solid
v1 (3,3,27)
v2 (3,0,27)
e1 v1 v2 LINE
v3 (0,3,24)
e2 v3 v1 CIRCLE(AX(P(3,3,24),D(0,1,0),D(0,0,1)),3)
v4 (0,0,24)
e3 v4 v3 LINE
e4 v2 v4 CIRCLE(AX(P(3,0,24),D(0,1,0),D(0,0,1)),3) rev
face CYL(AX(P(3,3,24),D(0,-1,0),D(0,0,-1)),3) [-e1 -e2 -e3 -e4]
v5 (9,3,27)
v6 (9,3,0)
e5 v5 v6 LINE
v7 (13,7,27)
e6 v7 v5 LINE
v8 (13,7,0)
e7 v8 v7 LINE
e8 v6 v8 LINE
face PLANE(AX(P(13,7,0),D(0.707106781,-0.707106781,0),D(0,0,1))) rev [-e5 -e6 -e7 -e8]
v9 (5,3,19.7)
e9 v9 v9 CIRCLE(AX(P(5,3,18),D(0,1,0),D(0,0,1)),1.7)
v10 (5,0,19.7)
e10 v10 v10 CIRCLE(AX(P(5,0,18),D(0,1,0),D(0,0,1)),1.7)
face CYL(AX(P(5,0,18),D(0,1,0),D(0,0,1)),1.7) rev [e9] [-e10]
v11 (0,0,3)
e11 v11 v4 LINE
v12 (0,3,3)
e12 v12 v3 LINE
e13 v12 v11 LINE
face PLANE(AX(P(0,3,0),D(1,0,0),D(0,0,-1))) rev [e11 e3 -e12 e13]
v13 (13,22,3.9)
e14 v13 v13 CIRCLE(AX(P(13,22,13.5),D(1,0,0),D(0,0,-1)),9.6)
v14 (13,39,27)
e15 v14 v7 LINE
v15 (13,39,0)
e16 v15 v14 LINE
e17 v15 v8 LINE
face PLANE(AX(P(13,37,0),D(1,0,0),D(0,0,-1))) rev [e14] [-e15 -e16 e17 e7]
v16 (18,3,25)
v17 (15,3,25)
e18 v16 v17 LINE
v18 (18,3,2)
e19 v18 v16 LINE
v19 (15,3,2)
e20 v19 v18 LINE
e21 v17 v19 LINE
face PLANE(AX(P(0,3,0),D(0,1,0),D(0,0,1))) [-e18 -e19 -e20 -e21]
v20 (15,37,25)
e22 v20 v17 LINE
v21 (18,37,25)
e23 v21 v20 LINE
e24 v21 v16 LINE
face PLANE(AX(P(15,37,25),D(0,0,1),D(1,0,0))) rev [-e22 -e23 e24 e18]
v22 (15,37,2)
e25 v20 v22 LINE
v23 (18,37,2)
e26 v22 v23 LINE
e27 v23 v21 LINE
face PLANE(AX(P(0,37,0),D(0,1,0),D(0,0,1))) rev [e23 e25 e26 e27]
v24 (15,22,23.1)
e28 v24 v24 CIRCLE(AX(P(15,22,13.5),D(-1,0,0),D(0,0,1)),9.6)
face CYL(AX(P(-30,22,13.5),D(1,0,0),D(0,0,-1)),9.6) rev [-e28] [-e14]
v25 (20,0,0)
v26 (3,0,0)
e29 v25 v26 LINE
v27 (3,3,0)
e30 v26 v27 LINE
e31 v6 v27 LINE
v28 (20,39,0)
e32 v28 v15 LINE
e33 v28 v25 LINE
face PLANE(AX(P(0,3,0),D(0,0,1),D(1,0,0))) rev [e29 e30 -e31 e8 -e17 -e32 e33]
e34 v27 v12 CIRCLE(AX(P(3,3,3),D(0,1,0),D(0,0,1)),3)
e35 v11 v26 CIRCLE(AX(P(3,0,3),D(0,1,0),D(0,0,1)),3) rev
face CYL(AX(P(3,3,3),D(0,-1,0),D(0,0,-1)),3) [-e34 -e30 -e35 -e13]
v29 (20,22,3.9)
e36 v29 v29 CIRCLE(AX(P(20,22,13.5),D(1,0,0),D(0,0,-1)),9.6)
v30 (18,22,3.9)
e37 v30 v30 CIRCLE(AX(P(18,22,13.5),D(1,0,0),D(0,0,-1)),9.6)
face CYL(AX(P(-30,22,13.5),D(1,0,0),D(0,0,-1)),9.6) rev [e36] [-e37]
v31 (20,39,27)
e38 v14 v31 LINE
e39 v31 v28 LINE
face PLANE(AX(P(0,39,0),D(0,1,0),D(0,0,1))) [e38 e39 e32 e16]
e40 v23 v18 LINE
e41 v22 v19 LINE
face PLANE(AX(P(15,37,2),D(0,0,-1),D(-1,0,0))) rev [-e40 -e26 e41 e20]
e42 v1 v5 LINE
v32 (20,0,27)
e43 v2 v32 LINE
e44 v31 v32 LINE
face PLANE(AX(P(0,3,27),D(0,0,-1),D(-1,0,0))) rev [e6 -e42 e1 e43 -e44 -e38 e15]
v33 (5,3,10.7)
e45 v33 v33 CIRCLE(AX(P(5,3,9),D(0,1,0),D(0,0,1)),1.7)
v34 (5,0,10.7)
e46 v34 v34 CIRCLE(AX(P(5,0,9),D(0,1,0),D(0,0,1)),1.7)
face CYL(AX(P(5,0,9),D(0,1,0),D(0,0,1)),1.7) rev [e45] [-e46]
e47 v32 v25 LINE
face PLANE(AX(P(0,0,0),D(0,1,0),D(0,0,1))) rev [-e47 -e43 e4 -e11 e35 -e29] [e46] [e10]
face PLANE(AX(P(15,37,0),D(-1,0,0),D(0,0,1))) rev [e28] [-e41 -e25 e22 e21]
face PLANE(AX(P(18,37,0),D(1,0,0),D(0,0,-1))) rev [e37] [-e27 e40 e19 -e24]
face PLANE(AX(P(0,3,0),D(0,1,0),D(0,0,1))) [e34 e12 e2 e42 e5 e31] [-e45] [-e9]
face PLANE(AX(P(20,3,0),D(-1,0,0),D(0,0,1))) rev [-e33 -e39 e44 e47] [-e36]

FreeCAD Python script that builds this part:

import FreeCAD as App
import Part
import Sketcher

V = App.Vector


def edges_at(feature, points):
    """Names of the edges that pass closest to the given points."""
    edges = feature.Shape.Edges
    near = lambda p: min(range(len(edges)), key=lambda i: edges[i].distToShape(Part.Vertex(*p))[0])
    return sorted({f"Edge{near(p) + 1}" for p in points})

doc = App.newDocument("Part")
body = doc.addObject("PartDesign::Body", "Body")

# Sketch on XZ plane
sketch1 = doc.addObject("Sketcher::SketchObject", "Sketch")
body.addObject(sketch1)
sketch1.AttachmentSupport = (doc.XZ_Plane, [""])
sketch1.MapMode = "FlatFace"
sketch1.addGeometry(Part.LineSegment(V(0, 0, 0), V(0, 27, 0)), False)
sketch1.addGeometry(Part.LineSegment(V(0, 27, 0), V(20, 27, 0)), False)
sketch1.addGeometry(Part.LineSegment(V(20, 27, 0), V(20, 0, 0)), False)
sketch1.addGeometry(Part.LineSegment(V(20, 0, 0), V(0, 0, 0)), False)
sketch1.addConstraint(Sketcher.Constraint("Coincident", 0, 2, 1, 1))
sketch1.addConstraint(Sketcher.Constraint("Coincident", 1, 2, 2, 1))
sketch1.addConstraint(Sketcher.Constraint("Coincident", 2, 2, 3, 1))
sketch1.addConstraint(Sketcher.Constraint("Coincident", 3, 2, 0, 1))
sketch1.addConstraint(Sketcher.Constraint("Vertical", 0))
sketch1.addConstraint(Sketcher.Constraint("Horizontal", 1))
sketch1.addConstraint(Sketcher.Constraint("Vertical", 2))
sketch1.addConstraint(Sketcher.Constraint("Horizontal", 3))
sketch1.addConstraint(Sketcher.Constraint("Coincident", 3, 2, -1, 1))
sketch1.addConstraint(Sketcher.Constraint("DistanceX", 1, 1, 1, 2, 20.0))
sketch1.addConstraint(Sketcher.Constraint("DistanceY", 0, 1, 0, 2, 27.0))
pad1 = doc.addObject("PartDesign::Pad", "Pad")
body.addObject(pad1)
pad1.Profile = sketch1
pad1.Length = 3
pad1.Reversed = True

# Sketch on XZ plane
sketch2 = doc.addObject("Sketcher::SketchObject", "Sketch001")
body.addObject(sketch2)
sketch2.AttachmentSupport = (doc.XZ_Plane, [""])
sketch2.MapMode = "FlatFace"
sketch2.AttachmentOffset = App.Placement(V(0, 0, -3), App.Rotation())
sketch2.addGeometry(Part.LineSegment(V(18, 0, 0), V(18, 27, 0)), False)
sketch2.addGeometry(Part.LineSegment(V(18, 27, 0), V(20, 27, 0)), False)
sketch2.addGeometry(Part.LineSegment(V(20, 27, 0), V(20, 0, 0)), False)
sketch2.addGeometry(Part.LineSegment(V(20, 0, 0), V(18, 0, 0)), False)
sketch2.addConstraint(Sketcher.Constraint("Coincident", 0, 2, 1, 1))
sketch2.addConstraint(Sketcher.Constraint("Coincident", 1, 2, 2, 1))
sketch2.addConstraint(Sketcher.Constraint("Coincident", 2, 2, 3, 1))
sketch2.addConstraint(Sketcher.Constraint("Coincident", 3, 2, 0, 1))
sketch2.addConstraint(Sketcher.Constraint("Vertical", 0))
sketch2.addConstraint(Sketcher.Constraint("Horizontal", 1))
sketch2.addConstraint(Sketcher.Constraint("Vertical", 2))
sketch2.addConstraint(Sketcher.Constraint("Horizontal", 3))
sketch2.addConstraint(Sketcher.Constraint("PointOnObject", 2, 2, -1))
sketch2.addConstraint(Sketcher.Constraint("DistanceX", 1, 1, 1, 2, 2.0))
sketch2.addConstraint(Sketcher.Constraint("DistanceY", 0, 1, 0, 2, 27.0))
sketch2.addConstraint(Sketcher.Constraint("DistanceX", -1, 1, 0, 2, 18.0))
pad2 = doc.addObject("PartDesign::Pad", "Pad001")
body.addObject(pad2)
pad2.Profile = sketch2
pad2.Length = 34
pad2.Reversed = True

# Sketch on XZ plane
sketch3 = doc.addObject("Sketcher::SketchObject", "Sketch002")
body.addObject(sketch3)
sketch3.AttachmentSupport = (doc.XZ_Plane, [""])
sketch3.MapMode = "FlatFace"
sketch3.AttachmentOffset = App.Placement(V(0, 0, -3), App.Rotation())
sketch3.addGeometry(Part.LineSegment(V(13, 0, 0), V(13, 27, 0)), False)
sketch3.addGeometry(Part.LineSegment(V(13, 27, 0), V(15, 27, 0)), False)
sketch3.addGeometry(Part.LineSegment(V(15, 27, 0), V(15, 0, 0)), False)
sketch3.addGeometry(Part.LineSegment(V(15, 0, 0), V(13, 0, 0)), False)
sketch3.addConstraint(Sketcher.Constraint("Coincident", 0, 2, 1, 1))
sketch3.addConstraint(Sketcher.Constraint("Coincident", 1, 2, 2, 1))
sketch3.addConstraint(Sketcher.Constraint("Coincident", 2, 2, 3, 1))
sketch3.addConstraint(Sketcher.Constraint("Coincident", 3, 2, 0, 1))
sketch3.addConstraint(Sketcher.Constraint("Vertical", 0))
sketch3.addConstraint(Sketcher.Constraint("Horizontal", 1))
sketch3.addConstraint(Sketcher.Constraint("Vertical", 2))
sketch3.addConstraint(Sketcher.Constraint("Horizontal", 3))
sketch3.addConstraint(Sketcher.Constraint("PointOnObject", 2, 2, -1))
sketch3.addConstraint(Sketcher.Constraint("DistanceX", 1, 1, 1, 2, 2.0))
sketch3.addConstraint(Sketcher.Constraint("DistanceY", 0, 1, 0, 2, 27.0))
sketch3.addConstraint(Sketcher.Constraint("DistanceX", -1, 1, 0, 2, 13.0))
pad3 = doc.addObject("PartDesign::Pad", "Pad002")
body.addObject(pad3)
pad3.Profile = sketch3
pad3.Length = 34
pad3.Reversed = True

# Sketch on XZ plane
sketch4 = doc.addObject("Sketcher::SketchObject", "Sketch003")
body.addObject(sketch4)
sketch4.AttachmentSupport = (doc.XZ_Plane, [""])
sketch4.MapMode = "FlatFace"
sketch4.AttachmentOffset = App.Placement(V(0, 0, -3), App.Rotation())
sketch4.addGeometry(Part.LineSegment(V(15, 0, 0), V(15, 2, 0)), False)
sketch4.addGeometry(Part.LineSegment(V(15, 2, 0), V(18, 2, 0)), False)
sketch4.addGeometry(Part.LineSegment(V(18, 2, 0), V(18, 0, 0)), False)
sketch4.addGeometry(Part.LineSegment(V(18, 0, 0), V(15, 0, 0)), False)
sketch4.addGeometry(Part.LineSegment(V(15, 25, 0), V(15, 27, 0)), False)
sketch4.addGeometry(Part.LineSegment(V(15, 27, 0), V(18, 27, 0)), False)
sketch4.addGeometry(Part.LineSegment(V(18, 27, 0), V(18, 25, 0)), False)
sketch4.addGeometry(Part.LineSegment(V(18, 25, 0), V(15, 25, 0)), False)
sketch4.addConstraint(Sketcher.Constraint("Coincident", 0, 2, 1, 1))
sketch4.addConstraint(Sketcher.Constraint("Coincident", 1, 2, 2, 1))
sketch4.addConstraint(Sketcher.Constraint("Coincident", 2, 2, 3, 1))
sketch4.addConstraint(Sketcher.Constraint("Coincident", 3, 2, 0, 1))
sketch4.addConstraint(Sketcher.Constraint("Coincident", 4, 2, 5, 1))
sketch4.addConstraint(Sketcher.Constraint("Coincident", 5, 2, 6, 1))
sketch4.addConstraint(Sketcher.Constraint("Coincident", 6, 2, 7, 1))
sketch4.addConstraint(Sketcher.Constraint("Coincident", 7, 2, 4, 1))
sketch4.addConstraint(Sketcher.Constraint("Vertical", 0))
sketch4.addConstraint(Sketcher.Constraint("Horizontal", 1))
sketch4.addConstraint(Sketcher.Constraint("Vertical", 2))
sketch4.addConstraint(Sketcher.Constraint("Horizontal", 3))
sketch4.addConstraint(Sketcher.Constraint("Vertical", 4))
sketch4.addConstraint(Sketcher.Constraint("Horizontal", 5))
sketch4.addConstraint(Sketcher.Constraint("Vertical", 6))
sketch4.addConstraint(Sketcher.Constraint("Horizontal", 7))
sketch4.addConstraint(Sketcher.Constraint("PointOnObject", 2, 2, -1))
sketch4.addConstraint(Sketcher.Constraint("Vertical", 3, 2, 4, 2))
sketch4.addConstraint(Sketcher.Constraint("Vertical", 2, 2, 5, 2))
sketch4.addConstraint(Sketcher.Constraint("Equal", 2, 4))
sketch4.addConstraint(Sketcher.Constraint("DistanceX", 1, 1, 1, 2, 3.0))
sketch4.addConstraint(Sketcher.Constraint("DistanceY", 0, 1, 0, 2, 2.0))
sketch4.addConstraint(Sketcher.Constraint("DistanceX", -1, 1, 0, 2, 15.0))
sketch4.addConstraint(Sketcher.Constraint("DistanceY", -1, 1, 4, 2, 27.0))
pad4 = doc.addObject("PartDesign::Pad", "Pad003")
body.addObject(pad4)
pad4.Profile = sketch4
pad4.Length = 34
pad4.Reversed = True

# Sketch on XZ plane
sketch5 = doc.addObject("Sketcher::SketchObject", "Sketch004")
body.addObject(sketch5)
sketch5.AttachmentSupport = (doc.XZ_Plane, [""])
sketch5.MapMode = "FlatFace"
sketch5.AttachmentOffset = App.Placement(V(0, 0, -37), App.Rotation())
sketch5.addGeometry(Part.LineSegment(V(13, 0, 0), V(13, 27, 0)), False)
sketch5.addGeometry(Part.LineSegment(V(13, 27, 0), V(20, 27, 0)), False)
sketch5.addGeometry(Part.LineSegment(V(20, 27, 0), V(20, 0, 0)), False)
sketch5.addGeometry(Part.LineSegment(V(20, 0, 0), V(13, 0, 0)), False)
sketch5.addConstraint(Sketcher.Constraint("Coincident", 0, 2, 1, 1))
sketch5.addConstraint(Sketcher.Constraint("Coincident", 1, 2, 2, 1))
sketch5.addConstraint(Sketcher.Constraint("Coincident", 2, 2, 3, 1))
sketch5.addConstraint(Sketcher.Constraint("Coincident", 3, 2, 0, 1))
sketch5.addConstraint(Sketcher.Constraint("Vertical", 0))
sketch5.addConstraint(Sketcher.Constraint("Horizontal", 1))
sketch5.addConstraint(Sketcher.Constraint("Vertical", 2))
sketch5.addConstraint(Sketcher.Constraint("Horizontal", 3))
sketch5.addConstraint(Sketcher.Constraint("PointOnObject", 2, 2, -1))
sketch5.addConstraint(Sketcher.Constraint("DistanceX", 1, 1, 1, 2, 7.0))
sketch5.addConstraint(Sketcher.Constraint("DistanceY", 0, 1, 0, 2, 27.0))
sketch5.addConstraint(Sketcher.Constraint("DistanceX", -1, 1, 0, 2, 13.0))
pad5 = doc.addObject("PartDesign::Pad", "Pad004")
body.addObject(pad5)
pad5.Profile = sketch5
pad5.Length = 2
pad5.Reversed = True

# Sketch on XZ plane
sketch6 = doc.addObject("Sketcher::SketchObject", "Sketch005")
body.addObject(sketch6)
sketch6.AttachmentSupport = (doc.XZ_Plane, [""])
sketch6.MapMode = "FlatFace"
sketch6.AttachmentOffset = App.Placement(V(0, 0, -3), App.Rotation())
sketch6.addGeometry(Part.Circle(V(5, 9, 0), V(0, 0, 1), 1.7), False)
sketch6.addGeometry(Part.Circle(V(5, 18, 0), V(0, 0, 1), 1.7), False)
sketch6.addConstraint(Sketcher.Constraint("Equal", 0, 1))
sketch6.addConstraint(Sketcher.Constraint("Vertical", 0, 3, 1, 3))
sketch6.addConstraint(Sketcher.Constraint("Diameter", 0, 3.4))
sketch6.addConstraint(Sketcher.Constraint("DistanceX", -1, 1, 0, 3, 5.0))
sketch6.addConstraint(Sketcher.Constraint("DistanceY", -1, 1, 0, 3, 9.0))
sketch6.addConstraint(Sketcher.Constraint("DistanceY", -1, 1, 1, 3, 18.0))
pocket1 = doc.addObject("PartDesign::Pocket", "Pocket")
body.addObject(pocket1)
pocket1.Profile = sketch6
pocket1.Type = "ThroughAll"
pocket1.Reversed = True

# Sketch on YZ plane
sketch7 = doc.addObject("Sketcher::SketchObject", "Sketch006")
body.addObject(sketch7)
sketch7.AttachmentSupport = (doc.YZ_Plane, [""])
sketch7.MapMode = "FlatFace"
sketch7.AttachmentOffset = App.Placement(V(0, 0, 20), App.Rotation())
sketch7.addGeometry(Part.Circle(V(22, 13.5, 0), V(0, 0, 1), 9.6), False)
sketch7.addConstraint(Sketcher.Constraint("Diameter", 0, 19.2))
sketch7.addConstraint(Sketcher.Constraint("DistanceX", -1, 1, 0, 3, 22.0))
sketch7.addConstraint(Sketcher.Constraint("DistanceY", -1, 1, 0, 3, 13.5))
pocket2 = doc.addObject("PartDesign::Pocket", "Pocket001")
body.addObject(pocket2)
pocket2.Profile = sketch7
pocket2.Length = 50
doc.recompute()

chamfer = doc.addObject("PartDesign::Chamfer", "Chamfer")
body.addObject(chamfer)
chamfer.Base = (pocket2, edges_at(pocket2, [(13, 3, 13.5)]))
chamfer.Size = 4
doc.recompute()

fillet = doc.addObject("PartDesign::Fillet", "Fillet")
body.addObject(fillet)
fillet.Base = (chamfer, edges_at(chamfer, [(0, 1.5, 0), (0, 1.5, 27)]))
fillet.Radius = 3

doc.recompute()
